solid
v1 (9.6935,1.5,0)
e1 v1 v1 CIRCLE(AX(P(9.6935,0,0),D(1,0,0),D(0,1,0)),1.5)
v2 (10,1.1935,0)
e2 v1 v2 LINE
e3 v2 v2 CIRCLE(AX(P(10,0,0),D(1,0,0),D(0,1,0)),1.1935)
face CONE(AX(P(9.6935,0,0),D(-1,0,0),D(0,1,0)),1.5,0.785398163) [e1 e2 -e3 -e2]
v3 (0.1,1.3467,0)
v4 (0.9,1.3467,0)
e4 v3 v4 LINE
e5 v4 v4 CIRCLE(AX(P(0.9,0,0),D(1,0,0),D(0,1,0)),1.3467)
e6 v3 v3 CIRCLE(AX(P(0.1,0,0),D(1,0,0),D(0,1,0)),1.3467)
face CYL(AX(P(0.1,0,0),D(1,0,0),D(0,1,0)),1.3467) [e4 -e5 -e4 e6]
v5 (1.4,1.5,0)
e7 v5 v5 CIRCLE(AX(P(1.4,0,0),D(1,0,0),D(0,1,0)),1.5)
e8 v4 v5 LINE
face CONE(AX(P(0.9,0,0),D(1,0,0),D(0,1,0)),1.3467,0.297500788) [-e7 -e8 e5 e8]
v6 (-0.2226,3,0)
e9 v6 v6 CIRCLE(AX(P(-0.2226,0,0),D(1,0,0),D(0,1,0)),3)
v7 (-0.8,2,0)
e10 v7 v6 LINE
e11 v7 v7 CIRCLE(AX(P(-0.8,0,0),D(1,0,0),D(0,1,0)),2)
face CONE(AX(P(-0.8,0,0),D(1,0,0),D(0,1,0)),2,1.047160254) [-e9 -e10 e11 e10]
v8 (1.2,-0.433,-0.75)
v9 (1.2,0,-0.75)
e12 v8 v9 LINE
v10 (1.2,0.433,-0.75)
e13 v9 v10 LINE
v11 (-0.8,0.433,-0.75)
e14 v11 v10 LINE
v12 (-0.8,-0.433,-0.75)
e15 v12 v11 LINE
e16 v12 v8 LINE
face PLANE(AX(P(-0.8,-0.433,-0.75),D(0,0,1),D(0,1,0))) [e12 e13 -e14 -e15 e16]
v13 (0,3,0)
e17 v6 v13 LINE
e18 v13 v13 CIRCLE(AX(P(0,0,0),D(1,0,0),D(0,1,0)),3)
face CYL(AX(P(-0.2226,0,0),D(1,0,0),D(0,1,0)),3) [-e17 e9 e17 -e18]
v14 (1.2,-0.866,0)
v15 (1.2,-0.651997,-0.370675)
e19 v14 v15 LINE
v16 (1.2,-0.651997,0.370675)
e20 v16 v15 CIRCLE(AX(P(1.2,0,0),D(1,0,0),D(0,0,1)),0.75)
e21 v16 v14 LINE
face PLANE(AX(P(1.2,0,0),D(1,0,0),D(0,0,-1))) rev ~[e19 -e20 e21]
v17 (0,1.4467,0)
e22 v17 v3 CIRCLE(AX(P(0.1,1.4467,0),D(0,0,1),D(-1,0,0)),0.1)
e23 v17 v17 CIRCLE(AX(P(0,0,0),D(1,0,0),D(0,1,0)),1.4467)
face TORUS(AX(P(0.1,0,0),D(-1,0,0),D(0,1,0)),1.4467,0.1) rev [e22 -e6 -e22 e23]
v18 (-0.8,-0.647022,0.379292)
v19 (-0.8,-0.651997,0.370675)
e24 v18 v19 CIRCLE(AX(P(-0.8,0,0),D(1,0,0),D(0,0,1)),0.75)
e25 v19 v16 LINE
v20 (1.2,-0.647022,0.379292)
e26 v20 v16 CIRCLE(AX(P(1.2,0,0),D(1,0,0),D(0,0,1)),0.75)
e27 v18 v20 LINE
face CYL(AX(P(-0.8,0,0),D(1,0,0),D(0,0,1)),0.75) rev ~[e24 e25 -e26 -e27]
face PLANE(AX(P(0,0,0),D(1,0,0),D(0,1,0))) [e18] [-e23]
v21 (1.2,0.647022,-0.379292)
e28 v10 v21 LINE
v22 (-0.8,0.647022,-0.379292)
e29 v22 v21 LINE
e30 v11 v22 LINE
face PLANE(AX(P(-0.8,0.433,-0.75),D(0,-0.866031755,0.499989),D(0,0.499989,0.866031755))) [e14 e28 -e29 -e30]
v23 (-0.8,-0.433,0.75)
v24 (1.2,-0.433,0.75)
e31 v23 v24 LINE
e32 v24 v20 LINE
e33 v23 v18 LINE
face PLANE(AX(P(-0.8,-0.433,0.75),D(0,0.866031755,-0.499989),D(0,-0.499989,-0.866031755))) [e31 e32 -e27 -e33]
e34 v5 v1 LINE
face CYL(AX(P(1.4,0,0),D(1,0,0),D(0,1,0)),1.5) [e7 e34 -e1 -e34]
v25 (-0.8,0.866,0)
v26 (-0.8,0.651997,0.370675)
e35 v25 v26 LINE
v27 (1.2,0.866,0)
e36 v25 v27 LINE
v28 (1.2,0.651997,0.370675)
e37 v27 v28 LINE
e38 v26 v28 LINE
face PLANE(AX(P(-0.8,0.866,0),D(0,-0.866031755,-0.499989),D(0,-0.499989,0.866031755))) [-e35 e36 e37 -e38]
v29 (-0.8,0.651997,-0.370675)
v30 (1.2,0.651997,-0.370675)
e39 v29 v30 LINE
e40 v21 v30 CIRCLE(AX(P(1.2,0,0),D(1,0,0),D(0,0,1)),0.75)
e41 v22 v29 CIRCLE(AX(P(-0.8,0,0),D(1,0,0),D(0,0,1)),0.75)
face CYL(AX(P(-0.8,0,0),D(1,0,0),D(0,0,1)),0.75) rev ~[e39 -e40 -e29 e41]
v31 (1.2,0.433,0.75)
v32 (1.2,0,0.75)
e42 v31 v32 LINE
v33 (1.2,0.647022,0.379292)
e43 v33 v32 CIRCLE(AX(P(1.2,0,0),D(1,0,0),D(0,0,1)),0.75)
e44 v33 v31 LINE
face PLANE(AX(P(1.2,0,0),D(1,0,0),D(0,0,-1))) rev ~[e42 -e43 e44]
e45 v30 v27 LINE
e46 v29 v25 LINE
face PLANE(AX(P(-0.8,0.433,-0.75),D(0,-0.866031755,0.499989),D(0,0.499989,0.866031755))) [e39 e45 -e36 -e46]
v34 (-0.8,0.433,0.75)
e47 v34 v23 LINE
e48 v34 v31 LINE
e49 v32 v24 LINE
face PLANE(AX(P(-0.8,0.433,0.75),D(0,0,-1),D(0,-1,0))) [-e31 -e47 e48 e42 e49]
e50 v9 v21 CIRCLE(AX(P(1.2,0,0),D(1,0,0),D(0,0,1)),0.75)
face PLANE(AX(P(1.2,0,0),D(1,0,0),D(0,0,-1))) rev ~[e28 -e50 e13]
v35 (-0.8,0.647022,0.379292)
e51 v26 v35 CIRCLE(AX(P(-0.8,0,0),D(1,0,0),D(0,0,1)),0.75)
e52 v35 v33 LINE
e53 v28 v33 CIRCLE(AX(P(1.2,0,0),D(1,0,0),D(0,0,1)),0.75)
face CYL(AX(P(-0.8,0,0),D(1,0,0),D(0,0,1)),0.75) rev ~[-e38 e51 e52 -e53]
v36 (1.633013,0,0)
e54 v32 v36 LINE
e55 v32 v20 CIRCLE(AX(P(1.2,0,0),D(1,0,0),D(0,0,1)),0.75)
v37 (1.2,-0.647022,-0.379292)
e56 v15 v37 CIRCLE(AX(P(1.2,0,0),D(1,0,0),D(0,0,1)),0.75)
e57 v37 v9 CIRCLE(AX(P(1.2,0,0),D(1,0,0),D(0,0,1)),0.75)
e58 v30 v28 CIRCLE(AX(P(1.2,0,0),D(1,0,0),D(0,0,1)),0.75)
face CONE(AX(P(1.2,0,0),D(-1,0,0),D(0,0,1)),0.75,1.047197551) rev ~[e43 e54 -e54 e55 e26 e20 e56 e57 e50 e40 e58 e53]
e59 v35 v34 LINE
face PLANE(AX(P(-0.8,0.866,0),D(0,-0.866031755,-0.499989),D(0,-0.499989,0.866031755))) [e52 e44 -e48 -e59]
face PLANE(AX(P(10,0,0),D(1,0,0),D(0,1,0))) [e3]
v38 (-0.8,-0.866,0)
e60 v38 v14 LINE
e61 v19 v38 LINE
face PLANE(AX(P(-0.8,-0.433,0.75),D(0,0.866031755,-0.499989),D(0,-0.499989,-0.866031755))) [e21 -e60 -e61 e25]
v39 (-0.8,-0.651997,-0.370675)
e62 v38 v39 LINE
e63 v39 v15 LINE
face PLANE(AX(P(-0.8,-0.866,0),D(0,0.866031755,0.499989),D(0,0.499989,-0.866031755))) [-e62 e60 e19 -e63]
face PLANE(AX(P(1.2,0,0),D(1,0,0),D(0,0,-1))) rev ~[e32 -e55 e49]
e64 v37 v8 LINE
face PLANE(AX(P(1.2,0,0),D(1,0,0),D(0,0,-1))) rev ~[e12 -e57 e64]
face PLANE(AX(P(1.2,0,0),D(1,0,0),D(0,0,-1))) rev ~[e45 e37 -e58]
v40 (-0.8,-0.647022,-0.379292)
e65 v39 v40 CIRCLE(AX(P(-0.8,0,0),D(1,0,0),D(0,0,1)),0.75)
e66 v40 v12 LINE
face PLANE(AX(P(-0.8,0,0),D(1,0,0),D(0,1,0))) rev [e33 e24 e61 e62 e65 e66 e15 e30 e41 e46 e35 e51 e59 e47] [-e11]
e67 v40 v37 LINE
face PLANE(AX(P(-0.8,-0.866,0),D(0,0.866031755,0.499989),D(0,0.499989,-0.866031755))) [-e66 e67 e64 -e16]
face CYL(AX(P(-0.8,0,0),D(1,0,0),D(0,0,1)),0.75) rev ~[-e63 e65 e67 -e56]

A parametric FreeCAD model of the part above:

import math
import FreeCAD as App
import Part
import Sketcher
Q = App.Units.Quantity

doc = App.newDocument("Part")
body = doc.addObject("PartDesign::Body", "Body")

sketch1 = body.newObject("Sketcher::SketchObject", "Sketch")
sketch1.AttachmentSupport = (doc.getObject("XY_Plane"), [""])
sketch1.MapMode = "FlatFace"
sketch1.addGeometry([
    Part.LineSegment(App.Vector(-0.8, 0, 0), App.Vector(10, 0, 0)),
    Part.LineSegment(App.Vector(10, 0, 0), App.Vector(10, 1.1935, 0)),
    Part.LineSegment(App.Vector(10, 1.1935, 0), App.Vector(9.6935, 1.5, 0)),
    Part.LineSegment(App.Vector(9.6935, 1.5, 0), App.Vector(1.4, 1.5, 0)),
    Part.LineSegment(App.Vector(1.4, 1.5, 0), App.Vector(0.9, 1.3467, 0)),
    Part.LineSegment(App.Vector(0.9, 1.3467, 0), App.Vector(0.1, 1.3467, 0)),
    Part.ArcOfCircle(Part.Circle(App.Vector(0.1, 1.4467, 0), App.Vector(0, 0, 1), 0.1), math.radians(180), math.radians(270)),
    Part.LineSegment(App.Vector(0, 1.4467, 0), App.Vector(0, 3, 0)),
    Part.LineSegment(App.Vector(0, 3, 0), App.Vector(-0.2226, 3, 0)),
    Part.LineSegment(App.Vector(-0.2226, 3, 0), App.Vector(-0.8, 2, 0)),
    Part.LineSegment(App.Vector(-0.8, 2, 0), App.Vector(-0.8, 0, 0)),
], False)
sketch1.addConstraint([
    Sketcher.Constraint("Coincident", 0, 2, 1, 1),
    Sketcher.Constraint("Coincident", 1, 2, 2, 1),
    Sketcher.Constraint("Coincident", 2, 2, 3, 1),
    Sketcher.Constraint("Coincident", 3, 2, 4, 1),
    Sketcher.Constraint("Coincident", 4, 2, 5, 1),
    Sketcher.Constraint("Tangent", 5, 2, 6, 2),
    Sketcher.Constraint("Tangent", 6, 1, 7, 1),
    Sketcher.Constraint("Coincident", 7, 2, 8, 1),
    Sketcher.Constraint("Coincident", 8, 2, 9, 1),
    Sketcher.Constraint("Coincident", 9, 2, 10, 1),
    Sketcher.Constraint("Coincident", 10, 2, 0, 1),
    Sketcher.Constraint("Horizontal", 0),
    Sketcher.Constraint("Vertical", 1),
    Sketcher.Constraint("Horizontal", 3),
    Sketcher.Constraint("Horizontal", 5),
    Sketcher.Constraint("Vertical", 7),
    Sketcher.Constraint("Horizontal", 8),
    Sketcher.Constraint("Vertical", 10),
    Sketcher.Constraint("PointOnObject", 0, 2, -1),
    Sketcher.Constraint("PointOnObject", 6, 1, -2),
    Sketcher.Constraint("Radius", 6, 0.1),
    Sketcher.Constraint("DistanceY", 10, 2, 10, 1, 2.0),
    Sketcher.Constraint("Angle", 2, Q("135 deg")),
    Sketcher.Constraint("DistanceX", 0, 1, 0, 2, 10.8),
    Sketcher.Constraint("DistanceX", 5, 2, 5, 1, 0.8),
    Sketcher.Constraint("DistanceX", -1, 1, 0, 2, 10.0),
    Sketcher.Constraint("DistanceY", -1, 1, 7, 2, 3.0),
    Sketcher.Constraint("DistanceY", -1, 1, 2, 2, 1.5),
    Sketcher.Constraint("DistanceX", -1, 1, 3, 2, 1.4),
    Sketcher.Constraint("Distance", 4, 0.523),
    Sketcher.Constraint("DistanceX", 3, 2, 3, 1, 8.2935),
    Sketcher.Constraint("DistanceX", 8, 2, 8, 1, 0.2226),
])
revolution = body.newObject("PartDesign::Revolution", "Revolution")
revolution.Profile = sketch1
revolution.ReferenceAxis = (sketch1, ["H_Axis"])
revolution.Angle = 360

sketch2 = body.newObject("Sketcher::SketchObject", "Sketch001")
sketch2.AttachmentSupport = (doc.getObject("YZ_Plane"), [""])
sketch2.MapMode = "FlatFace"
sketch2.AttachmentOffset = App.Placement(App.Vector(0, 0, -0.8), App.Rotation())
sketch2.addGeometry(Part.Circle(App.Vector(0, 0, 0), App.Vector(0, 0, 1), 0.75), False)
sketch2.addConstraint([
    Sketcher.Constraint("Coincident", 0, 3, -1, 1),
    Sketcher.Constraint("Diameter", 0, 1.5),
])
doc.recompute()
hole = body.newObject("PartDesign::Hole", "Hole")
hole.Profile = sketch2
hole.ThreadType = "None"
hole.Diameter = 1.5
hole.DepthType = "Dimension"
hole.Depth = 2
hole.DrillPoint = "Angled"
hole.DrillPointAngle = 120
hole.Reversed = True

sketch3 = body.newObject("Sketcher::SketchObject", "Sketch002")
sketch3.AttachmentSupport = (doc.getObject("YZ_Plane"), [""])
sketch3.MapMode = "FlatFace"
sketch3.AttachmentOffset = App.Placement(App.Vector(0, 0, -0.8), App.Rotation())
sketch3.addGeometry([
    Part.LineSegment(App.Vector(0.433, 0.75, 0), App.Vector(-0.433, 0.75, 0)),
    Part.LineSegment(App.Vector(-0.433, 0.75, 0), App.Vector(-0.866, 0, 0)),
    Part.LineSegment(App.Vector(-0.866, 0, 0), App.Vector(-0.433, -0.75, 0)),
    Part.LineSegment(App.Vector(-0.433, -0.75, 0), App.Vector(0.433, -0.75, 0)),
    Part.LineSegment(App.Vector(0.433, -0.75, 0), App.Vector(0.866, 0, 0)),
    Part.LineSegment(App.Vector(0.866, 0, 0), App.Vector(0.433, 0.75, 0)),
], False)
sketch3.addConstraint([
    Sketcher.Constraint("Coincident", 0, 2, 1, 1),
    Sketcher.Constraint("Coincident", 1, 2, 2, 1),
    Sketcher.Constraint("Coincident", 2, 2, 3, 1),
    Sketcher.Constraint("Coincident", 3, 2, 4, 1),
    Sketcher.Constraint("Coincident", 4, 2, 5, 1),
    Sketcher.Constraint("Coincident", 5, 2, 0, 1),
    Sketcher.Constraint("Horizontal", 0),
    Sketcher.Constraint("Horizontal", 3),
    Sketcher.Constraint("Symmetric", 0, 2, 3, 2, -1, 1),
    Sketcher.Constraint("Symmetric", 1, 2, 4, 2, -1, 1),
    Sketcher.Constraint("PointOnObject", 1, 2, -1),
    Sketcher.Constraint("Parallel", 2, 5),
    Sketcher.Constraint("Vertical", 0, 2, 2, 2),
    Sketcher.Constraint("Angle", 1, Q("-119.9993 deg")),
    Sketcher.Constraint("DistanceY", 2, 2, 0, 2, 1.5),
    Sketcher.Constraint("DistanceX", 0, 2, 0, 1, 0.866),
])
pocket1 = body.newObject("PartDesign::Pocket", "Pocket")
pocket1.Profile = sketch3
pocket1.Length = 2
pocket1.Reversed = True

doc.recompute()
